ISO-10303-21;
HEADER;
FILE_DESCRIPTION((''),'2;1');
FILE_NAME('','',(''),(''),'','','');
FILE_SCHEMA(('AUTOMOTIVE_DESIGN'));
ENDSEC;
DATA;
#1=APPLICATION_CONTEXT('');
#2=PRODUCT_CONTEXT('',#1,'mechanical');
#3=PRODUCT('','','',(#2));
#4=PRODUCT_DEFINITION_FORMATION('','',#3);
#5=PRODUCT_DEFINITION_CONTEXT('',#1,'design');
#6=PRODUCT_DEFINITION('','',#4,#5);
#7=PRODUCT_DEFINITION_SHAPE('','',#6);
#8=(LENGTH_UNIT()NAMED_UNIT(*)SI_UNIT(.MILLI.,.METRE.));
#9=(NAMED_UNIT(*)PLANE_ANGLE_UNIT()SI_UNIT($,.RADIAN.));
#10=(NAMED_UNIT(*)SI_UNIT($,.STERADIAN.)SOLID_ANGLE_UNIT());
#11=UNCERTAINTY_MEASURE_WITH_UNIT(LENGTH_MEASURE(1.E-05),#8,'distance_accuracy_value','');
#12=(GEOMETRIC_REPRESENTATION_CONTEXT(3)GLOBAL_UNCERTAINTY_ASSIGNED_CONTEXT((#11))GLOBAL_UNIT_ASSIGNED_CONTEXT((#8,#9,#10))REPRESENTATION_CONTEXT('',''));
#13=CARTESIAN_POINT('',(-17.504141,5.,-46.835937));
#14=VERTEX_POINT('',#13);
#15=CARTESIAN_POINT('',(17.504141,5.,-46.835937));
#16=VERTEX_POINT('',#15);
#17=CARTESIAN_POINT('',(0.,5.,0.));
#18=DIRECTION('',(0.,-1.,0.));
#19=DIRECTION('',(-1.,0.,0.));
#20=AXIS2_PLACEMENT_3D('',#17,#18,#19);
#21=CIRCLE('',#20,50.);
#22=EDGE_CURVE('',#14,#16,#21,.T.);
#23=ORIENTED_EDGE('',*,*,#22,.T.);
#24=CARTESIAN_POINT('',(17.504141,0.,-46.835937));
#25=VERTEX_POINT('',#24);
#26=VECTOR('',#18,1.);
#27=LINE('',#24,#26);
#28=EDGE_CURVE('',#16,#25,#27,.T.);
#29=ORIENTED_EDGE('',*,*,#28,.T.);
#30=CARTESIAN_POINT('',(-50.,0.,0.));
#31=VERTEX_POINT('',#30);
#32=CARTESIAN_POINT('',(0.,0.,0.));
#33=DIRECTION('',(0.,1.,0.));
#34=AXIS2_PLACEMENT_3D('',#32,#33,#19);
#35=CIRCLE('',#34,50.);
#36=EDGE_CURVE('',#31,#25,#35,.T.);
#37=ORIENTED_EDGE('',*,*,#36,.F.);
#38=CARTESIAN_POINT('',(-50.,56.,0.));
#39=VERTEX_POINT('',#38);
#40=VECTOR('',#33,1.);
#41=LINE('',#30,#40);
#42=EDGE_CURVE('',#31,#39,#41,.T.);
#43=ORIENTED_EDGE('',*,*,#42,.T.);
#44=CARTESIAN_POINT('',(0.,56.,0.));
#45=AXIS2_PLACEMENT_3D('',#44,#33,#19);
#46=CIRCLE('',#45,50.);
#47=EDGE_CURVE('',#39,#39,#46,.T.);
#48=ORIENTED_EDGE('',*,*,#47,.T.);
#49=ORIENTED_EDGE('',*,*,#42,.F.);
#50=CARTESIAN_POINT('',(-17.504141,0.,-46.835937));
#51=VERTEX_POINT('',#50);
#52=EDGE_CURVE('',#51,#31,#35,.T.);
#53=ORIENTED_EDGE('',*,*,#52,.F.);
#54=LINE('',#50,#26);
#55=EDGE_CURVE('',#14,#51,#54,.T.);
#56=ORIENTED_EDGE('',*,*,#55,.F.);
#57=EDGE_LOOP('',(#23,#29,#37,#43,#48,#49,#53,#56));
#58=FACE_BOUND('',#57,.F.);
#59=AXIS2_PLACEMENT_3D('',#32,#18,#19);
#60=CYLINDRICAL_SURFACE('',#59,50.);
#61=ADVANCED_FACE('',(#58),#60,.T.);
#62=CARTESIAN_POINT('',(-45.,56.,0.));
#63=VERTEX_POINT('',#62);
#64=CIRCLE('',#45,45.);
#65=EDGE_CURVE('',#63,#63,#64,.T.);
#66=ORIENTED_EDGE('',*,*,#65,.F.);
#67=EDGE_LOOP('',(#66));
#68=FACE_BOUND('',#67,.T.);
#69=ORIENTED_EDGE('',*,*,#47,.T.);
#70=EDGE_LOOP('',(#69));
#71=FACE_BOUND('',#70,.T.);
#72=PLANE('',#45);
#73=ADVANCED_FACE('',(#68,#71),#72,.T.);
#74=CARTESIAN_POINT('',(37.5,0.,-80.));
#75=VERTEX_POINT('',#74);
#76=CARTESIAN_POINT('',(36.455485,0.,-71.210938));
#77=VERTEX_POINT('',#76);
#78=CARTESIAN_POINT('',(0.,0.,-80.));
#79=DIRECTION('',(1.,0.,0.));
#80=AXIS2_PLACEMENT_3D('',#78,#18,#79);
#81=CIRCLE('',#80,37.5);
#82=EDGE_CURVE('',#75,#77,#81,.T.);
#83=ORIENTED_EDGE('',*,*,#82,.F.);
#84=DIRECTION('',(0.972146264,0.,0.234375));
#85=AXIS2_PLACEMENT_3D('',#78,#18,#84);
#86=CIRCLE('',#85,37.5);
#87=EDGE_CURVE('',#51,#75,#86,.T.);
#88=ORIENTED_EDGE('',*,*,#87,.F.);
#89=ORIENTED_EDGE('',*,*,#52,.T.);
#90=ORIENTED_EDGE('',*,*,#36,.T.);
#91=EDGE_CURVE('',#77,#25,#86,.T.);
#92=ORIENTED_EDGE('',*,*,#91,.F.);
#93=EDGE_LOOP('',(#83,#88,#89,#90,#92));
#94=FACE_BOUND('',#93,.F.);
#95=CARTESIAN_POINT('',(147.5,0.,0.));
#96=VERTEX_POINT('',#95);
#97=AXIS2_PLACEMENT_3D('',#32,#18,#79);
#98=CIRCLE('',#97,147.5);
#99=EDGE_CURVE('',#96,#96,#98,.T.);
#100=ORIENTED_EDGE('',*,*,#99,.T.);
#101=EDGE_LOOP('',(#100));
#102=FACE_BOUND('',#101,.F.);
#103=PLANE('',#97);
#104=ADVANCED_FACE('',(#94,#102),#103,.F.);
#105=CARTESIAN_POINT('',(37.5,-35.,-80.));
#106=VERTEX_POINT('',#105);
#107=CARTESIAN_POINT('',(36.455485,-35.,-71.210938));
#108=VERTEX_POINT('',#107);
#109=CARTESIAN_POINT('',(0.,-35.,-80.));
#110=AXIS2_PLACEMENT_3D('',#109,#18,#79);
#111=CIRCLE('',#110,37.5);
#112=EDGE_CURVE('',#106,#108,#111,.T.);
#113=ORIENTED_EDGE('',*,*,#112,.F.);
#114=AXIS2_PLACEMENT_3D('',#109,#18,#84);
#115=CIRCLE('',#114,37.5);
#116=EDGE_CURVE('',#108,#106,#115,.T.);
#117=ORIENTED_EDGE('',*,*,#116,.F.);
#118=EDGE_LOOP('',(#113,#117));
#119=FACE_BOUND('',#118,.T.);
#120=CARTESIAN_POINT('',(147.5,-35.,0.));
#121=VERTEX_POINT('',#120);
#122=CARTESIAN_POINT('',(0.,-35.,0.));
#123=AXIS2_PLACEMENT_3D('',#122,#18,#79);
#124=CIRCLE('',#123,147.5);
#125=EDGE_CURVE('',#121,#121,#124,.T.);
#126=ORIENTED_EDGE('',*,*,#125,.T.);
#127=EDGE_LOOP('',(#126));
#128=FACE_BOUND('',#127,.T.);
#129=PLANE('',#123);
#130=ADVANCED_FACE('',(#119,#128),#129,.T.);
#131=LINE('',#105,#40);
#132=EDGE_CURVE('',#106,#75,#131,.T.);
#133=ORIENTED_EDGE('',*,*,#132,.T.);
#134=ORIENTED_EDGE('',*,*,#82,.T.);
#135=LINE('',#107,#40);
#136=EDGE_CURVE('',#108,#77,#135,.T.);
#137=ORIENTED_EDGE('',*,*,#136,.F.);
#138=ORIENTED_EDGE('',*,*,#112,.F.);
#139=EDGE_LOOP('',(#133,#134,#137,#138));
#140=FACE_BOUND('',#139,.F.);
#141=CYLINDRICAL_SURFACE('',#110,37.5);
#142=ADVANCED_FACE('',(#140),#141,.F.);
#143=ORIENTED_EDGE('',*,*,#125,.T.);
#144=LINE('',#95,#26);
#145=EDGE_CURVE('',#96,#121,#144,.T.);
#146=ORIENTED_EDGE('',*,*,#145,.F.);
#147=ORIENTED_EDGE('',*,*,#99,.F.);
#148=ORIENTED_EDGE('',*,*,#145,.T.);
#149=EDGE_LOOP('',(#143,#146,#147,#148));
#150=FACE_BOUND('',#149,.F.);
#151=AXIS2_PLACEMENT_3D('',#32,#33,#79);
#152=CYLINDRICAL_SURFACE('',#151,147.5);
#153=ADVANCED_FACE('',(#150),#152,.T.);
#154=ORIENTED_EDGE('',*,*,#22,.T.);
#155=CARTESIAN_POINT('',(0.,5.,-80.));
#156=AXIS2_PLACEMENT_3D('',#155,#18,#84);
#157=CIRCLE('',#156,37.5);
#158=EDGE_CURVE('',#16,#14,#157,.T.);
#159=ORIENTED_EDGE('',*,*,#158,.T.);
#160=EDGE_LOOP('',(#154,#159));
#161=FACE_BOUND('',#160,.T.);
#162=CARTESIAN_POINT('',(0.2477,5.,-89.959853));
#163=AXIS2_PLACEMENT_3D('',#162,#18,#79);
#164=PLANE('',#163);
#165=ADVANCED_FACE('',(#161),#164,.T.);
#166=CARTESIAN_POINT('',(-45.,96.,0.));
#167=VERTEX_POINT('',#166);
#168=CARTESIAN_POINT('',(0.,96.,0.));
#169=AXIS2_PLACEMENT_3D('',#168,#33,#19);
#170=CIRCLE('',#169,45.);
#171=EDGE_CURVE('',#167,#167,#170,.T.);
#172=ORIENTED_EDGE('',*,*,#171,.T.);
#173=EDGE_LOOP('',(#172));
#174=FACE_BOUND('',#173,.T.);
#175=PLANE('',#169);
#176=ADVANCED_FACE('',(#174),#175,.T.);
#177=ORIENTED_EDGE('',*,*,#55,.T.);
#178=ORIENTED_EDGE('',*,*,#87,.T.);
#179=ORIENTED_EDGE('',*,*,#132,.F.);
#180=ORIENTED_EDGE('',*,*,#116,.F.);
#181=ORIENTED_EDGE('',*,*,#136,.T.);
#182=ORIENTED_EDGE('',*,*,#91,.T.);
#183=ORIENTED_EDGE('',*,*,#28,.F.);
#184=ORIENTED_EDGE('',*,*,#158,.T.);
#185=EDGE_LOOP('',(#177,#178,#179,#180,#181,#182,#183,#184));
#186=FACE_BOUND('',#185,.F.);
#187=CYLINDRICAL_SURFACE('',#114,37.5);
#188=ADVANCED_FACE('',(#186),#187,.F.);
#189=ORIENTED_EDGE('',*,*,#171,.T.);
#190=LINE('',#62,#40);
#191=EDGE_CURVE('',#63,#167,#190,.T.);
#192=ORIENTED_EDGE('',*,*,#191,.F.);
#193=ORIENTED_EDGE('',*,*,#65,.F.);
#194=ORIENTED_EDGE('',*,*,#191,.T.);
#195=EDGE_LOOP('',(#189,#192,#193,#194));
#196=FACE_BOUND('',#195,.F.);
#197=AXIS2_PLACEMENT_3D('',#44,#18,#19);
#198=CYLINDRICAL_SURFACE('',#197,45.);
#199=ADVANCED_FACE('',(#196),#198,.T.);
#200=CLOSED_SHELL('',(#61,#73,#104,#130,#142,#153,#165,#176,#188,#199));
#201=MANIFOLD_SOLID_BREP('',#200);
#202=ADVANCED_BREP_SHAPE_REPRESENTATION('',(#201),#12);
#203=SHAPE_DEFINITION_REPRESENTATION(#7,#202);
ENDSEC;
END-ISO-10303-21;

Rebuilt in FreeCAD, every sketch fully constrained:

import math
import FreeCAD as App
import Part
import Sketcher

doc = App.newDocument("Part")
body = doc.addObject("PartDesign::Body", "Body")

# Sketch on XZ plane
sketch1 = body.newObject("Sketcher::SketchObject", "Sketch")
sketch1.AttachmentSupport = (doc.getObject("XZ_Plane"), [""])
sketch1.MapMode = "FlatFace"
sketch1.addGeometry(Part.Circle(App.Vector(0, 0, 0), App.Vector(0, 0, 1), 148), False)
sketch1.addConstraint(Sketcher.Constraint("Coincident", 0, 3, -1, 1))
sketch1.addConstraint(Sketcher.Constraint("Diameter", 0, 295.0))
pad1 = body.newObject("PartDesign::Pad", "Pad")
pad1.Profile = sketch1
pad1.Length = 35

# Sketch on XZ plane
sketch2 = body.newObject("Sketcher::SketchObject", "Sketch001")
sketch2.AttachmentSupport = (doc.getObject("XZ_Plane"), [""])
sketch2.MapMode = "FlatFace"
sketch2.addGeometry(Part.Circle(App.Vector(0, 0, 0), App.Vector(0, 0, 1), 50), False)
sketch2.addConstraint(Sketcher.Constraint("Coincident", 0, 3, -1, 1))
sketch2.addConstraint(Sketcher.Constraint("Diameter", 0, 100.0))
pad2 = body.newObject("PartDesign::Pad", "Pad001")
pad2.Profile = sketch2
pad2.Length = 56
pad2.Reversed = True

# Sketch on XZ plane
sketch3 = body.newObject("Sketcher::SketchObject", "Sketch002")
sketch3.AttachmentSupport = (doc.getObject("XZ_Plane"), [""])
sketch3.MapMode = "FlatFace"
sketch3.AttachmentOffset = App.Placement(App.Vector(0, 0, -56), App.Rotation())
sketch3.addGeometry(Part.Circle(App.Vector(0, 0, 0), App.Vector(0, 0, 1), 45), False)
sketch3.addConstraint(Sketcher.Constraint("Coincident", 0, 3, -1, 1))
sketch3.addConstraint(Sketcher.Constraint("Diameter", 0, 90.0))
pad3 = body.newObject("PartDesign::Pad", "Pad002")
pad3.Profile = sketch3
pad3.Length = 40
pad3.Reversed = True

# Sketch on XZ plane
sketch4 = body.newObject("Sketcher::SketchObject", "Sketch003")
sketch4.AttachmentSupport = (doc.getObject("XZ_Plane"), [""])
sketch4.MapMode = "FlatFace"
sketch4.AttachmentOffset = App.Placement(App.Vector(0, 0, 35), App.Rotation())
sketch4.addGeometry(Part.ArcOfCircle(Part.Circle(App.Vector(0, -80, 0), App.Vector(0, 0, 1), 37), math.radians(0), math.radians(13.55)), False)
sketch4.addGeometry(Part.ArcOfCircle(Part.Circle(App.Vector(0, -80, 0), App.Vector(0, 0, 1), 38), math.radians(14), math.radians(360)), False)
sketch4.addConstraint(Sketcher.Constraint("Tangent", 0, 1, 1, 2))
sketch4.addConstraint(Sketcher.Constraint("Coincident", 1, 1, 0, 2))
sketch4.addConstraint(Sketcher.Constraint("PointOnObject", 0, 3, -2))
sketch4.addConstraint(Sketcher.Constraint("Horizontal", 1, 3, 0, 1))
sketch4.addConstraint(Sketcher.Constraint("Radius", 0, 37.5))
sketch4.addConstraint(Sketcher.Constraint("DistanceY", 0, 3, -1, 1, 80.0))
sketch4.addConstraint(Sketcher.Constraint("DistanceX", -1, 1, 1, 1, 36.455485))
pocket1 = body.newObject("PartDesign::Pocket", "Pocket")
pocket1.Profile = sketch4
pocket1.Length = 40

doc.recompute()
